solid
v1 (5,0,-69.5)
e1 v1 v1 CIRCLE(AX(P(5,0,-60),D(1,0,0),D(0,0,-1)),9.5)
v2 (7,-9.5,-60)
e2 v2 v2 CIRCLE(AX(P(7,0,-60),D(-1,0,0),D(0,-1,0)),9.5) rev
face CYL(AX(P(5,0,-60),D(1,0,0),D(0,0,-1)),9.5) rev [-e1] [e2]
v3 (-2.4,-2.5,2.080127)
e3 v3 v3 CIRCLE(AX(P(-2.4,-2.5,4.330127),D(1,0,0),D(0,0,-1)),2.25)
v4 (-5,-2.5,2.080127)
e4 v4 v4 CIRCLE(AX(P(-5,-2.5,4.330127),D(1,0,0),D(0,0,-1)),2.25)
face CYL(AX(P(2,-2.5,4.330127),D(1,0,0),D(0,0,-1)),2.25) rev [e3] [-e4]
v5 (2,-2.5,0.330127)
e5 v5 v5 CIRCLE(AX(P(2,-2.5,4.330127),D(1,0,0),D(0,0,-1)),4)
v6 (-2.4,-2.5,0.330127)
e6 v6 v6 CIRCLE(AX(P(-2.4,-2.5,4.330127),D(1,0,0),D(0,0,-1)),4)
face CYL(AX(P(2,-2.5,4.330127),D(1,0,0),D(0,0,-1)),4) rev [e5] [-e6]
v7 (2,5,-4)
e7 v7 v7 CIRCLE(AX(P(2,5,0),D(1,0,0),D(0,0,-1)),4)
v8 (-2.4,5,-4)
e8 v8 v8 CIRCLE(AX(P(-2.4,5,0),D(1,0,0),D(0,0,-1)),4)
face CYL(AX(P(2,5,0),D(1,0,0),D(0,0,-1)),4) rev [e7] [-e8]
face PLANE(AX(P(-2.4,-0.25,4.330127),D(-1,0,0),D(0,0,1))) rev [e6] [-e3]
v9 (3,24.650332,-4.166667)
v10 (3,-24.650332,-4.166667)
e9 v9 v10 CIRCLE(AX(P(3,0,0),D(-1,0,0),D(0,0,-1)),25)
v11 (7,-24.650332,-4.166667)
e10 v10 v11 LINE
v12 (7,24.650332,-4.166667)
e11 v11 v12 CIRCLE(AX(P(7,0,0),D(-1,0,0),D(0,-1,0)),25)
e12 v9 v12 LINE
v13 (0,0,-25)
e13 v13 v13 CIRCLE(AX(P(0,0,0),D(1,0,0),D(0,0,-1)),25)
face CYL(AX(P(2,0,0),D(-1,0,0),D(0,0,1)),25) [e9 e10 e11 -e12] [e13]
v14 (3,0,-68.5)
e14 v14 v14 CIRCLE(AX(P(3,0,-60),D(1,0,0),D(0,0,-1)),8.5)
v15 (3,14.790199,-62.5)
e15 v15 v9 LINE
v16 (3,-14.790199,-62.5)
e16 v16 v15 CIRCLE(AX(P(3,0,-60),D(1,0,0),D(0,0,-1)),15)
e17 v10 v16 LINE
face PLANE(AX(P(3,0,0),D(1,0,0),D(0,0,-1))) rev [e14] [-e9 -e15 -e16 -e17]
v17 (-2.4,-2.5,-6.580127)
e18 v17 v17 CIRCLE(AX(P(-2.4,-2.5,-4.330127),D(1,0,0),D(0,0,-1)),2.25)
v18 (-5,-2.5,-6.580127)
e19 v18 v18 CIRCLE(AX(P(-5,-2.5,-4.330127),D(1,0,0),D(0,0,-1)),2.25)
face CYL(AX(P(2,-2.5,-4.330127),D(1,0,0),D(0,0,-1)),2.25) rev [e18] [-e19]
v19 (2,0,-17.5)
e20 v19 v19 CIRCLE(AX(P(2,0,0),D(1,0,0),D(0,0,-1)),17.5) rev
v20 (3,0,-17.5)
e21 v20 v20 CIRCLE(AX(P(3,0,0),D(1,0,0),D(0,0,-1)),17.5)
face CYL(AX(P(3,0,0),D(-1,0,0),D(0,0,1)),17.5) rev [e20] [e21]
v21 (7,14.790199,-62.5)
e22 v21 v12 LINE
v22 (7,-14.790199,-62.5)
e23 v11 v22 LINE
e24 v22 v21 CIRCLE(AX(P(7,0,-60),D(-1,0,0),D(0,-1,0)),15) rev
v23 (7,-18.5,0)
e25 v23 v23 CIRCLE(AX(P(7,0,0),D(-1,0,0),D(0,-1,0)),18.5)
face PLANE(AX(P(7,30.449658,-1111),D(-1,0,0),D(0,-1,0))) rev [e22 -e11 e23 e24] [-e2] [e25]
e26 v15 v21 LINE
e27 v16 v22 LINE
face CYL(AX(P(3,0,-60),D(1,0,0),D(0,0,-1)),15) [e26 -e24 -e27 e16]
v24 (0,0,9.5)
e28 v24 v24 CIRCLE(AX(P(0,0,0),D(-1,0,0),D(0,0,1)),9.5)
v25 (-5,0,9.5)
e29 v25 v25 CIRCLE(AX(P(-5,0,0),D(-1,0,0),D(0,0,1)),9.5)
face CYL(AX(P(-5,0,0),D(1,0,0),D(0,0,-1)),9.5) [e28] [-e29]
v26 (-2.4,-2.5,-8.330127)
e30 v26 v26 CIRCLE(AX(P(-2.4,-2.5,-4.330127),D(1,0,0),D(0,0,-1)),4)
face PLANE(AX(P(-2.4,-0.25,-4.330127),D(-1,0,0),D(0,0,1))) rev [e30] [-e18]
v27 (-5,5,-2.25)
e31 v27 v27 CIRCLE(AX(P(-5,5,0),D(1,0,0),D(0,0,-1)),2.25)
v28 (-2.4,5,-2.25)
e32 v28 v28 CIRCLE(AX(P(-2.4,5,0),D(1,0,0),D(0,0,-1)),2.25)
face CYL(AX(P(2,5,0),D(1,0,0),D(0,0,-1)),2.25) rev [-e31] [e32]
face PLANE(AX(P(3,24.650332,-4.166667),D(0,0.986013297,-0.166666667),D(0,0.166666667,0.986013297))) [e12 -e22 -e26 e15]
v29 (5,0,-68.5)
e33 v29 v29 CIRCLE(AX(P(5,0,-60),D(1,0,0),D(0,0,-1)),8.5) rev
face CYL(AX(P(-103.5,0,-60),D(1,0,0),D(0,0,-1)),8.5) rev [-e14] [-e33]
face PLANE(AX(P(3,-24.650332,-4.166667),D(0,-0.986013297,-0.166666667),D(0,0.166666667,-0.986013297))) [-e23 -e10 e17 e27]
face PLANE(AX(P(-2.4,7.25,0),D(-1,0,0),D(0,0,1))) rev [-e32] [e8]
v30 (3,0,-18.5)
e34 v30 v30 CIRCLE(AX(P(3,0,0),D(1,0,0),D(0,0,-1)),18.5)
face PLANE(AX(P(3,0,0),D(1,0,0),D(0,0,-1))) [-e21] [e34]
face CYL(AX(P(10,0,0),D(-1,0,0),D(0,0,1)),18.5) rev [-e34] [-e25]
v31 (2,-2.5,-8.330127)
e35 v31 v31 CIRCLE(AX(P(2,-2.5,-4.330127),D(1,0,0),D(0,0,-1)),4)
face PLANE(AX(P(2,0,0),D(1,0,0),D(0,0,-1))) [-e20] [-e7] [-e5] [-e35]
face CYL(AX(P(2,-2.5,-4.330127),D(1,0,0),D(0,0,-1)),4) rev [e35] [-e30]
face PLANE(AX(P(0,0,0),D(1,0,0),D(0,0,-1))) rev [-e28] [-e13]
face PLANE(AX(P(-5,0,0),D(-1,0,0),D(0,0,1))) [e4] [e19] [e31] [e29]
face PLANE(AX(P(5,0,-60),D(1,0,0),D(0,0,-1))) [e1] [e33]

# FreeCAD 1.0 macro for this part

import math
import FreeCAD as App
import Part
import Sketcher
from FreeCAD import Vector
Q = App.Units.Quantity


def add_polygon(sketch, points):
    """Adds a closed chain of lines whose ends are joined by coincident constraints."""
    first, n = sketch.GeometryCount, len(points)
    for a, b in zip(points, points[1:] + points[:1]):
        sketch.addGeometry(Part.LineSegment(App.Vector(*a, 0), App.Vector(*b, 0)), False)
    for i in range(n):
        sketch.addConstraint(Sketcher.Constraint("Coincident", first + i, 2, first + (i + 1) % n, 1))

doc = App.newDocument("Part")
body = doc.addObject("PartDesign::Body", "Body")

# Sketch on YZ plane
sketch1 = body.newObject("Sketcher::SketchObject", "Sketch")
sketch1.AttachmentSupport = (doc.getObject("YZ_Plane"), [""])
sketch1.MapMode = "FlatFace"
sketch1.addGeometry(Part.Circle(Vector(0, 0, 0), Vector(0, 0, 1), 25), False)
sketch1.addConstraint(Sketcher.Constraint("Coincident", 0, 3, -1, 1))
sketch1.addConstraint(Sketcher.Constraint("Diameter", 0, Q("50 mm")))
pad1 = body.newObject("PartDesign::Pad", "Pad")
pad1.Profile = sketch1
pad1.Length = 2

# Sketch on YZ plane
sketch2 = body.newObject("Sketcher::SketchObject", "Sketch001")
sketch2.AttachmentSupport = (doc.getObject("YZ_Plane"), [""])
sketch2.MapMode = "FlatFace"
sketch2.AttachmentOffset = App.Placement(Vector(0, 0, 2), App.Rotation())
sketch2.addGeometry(Part.Circle(Vector(0, 0, 0), Vector(0, 0, 1), 25), False)
sketch2.addGeometry(Part.Circle(Vector(0, 0, 0), Vector(0, 0, 1), 18), False)
sketch2.addConstraint(Sketcher.Constraint("Coincident", 0, 3, -1, 1))
sketch2.addConstraint(Sketcher.Constraint("Coincident", 1, 3, -1, 1))
sketch2.addConstraint(Sketcher.Constraint("Diameter", 0, Q("50 mm")))
sketch2.addConstraint(Sketcher.Constraint("Diameter", 1, Q("35 mm")))
pad2 = body.newObject("PartDesign::Pad", "Pad001")
pad2.Profile = sketch2
pad2.Length = 1

# Sketch on YZ plane
sketch3 = body.newObject("Sketcher::SketchObject", "Sketch002")
sketch3.AttachmentSupport = (doc.getObject("YZ_Plane"), [""])
sketch3.MapMode = "FlatFace"
sketch3.AttachmentOffset = App.Placement(Vector(0, 0, 3), App.Rotation())
sketch3.addGeometry(Part.Circle(Vector(0, 0, 0), Vector(0, 0, 1), 25), False)
sketch3.addGeometry(Part.Circle(Vector(0, 0, 0), Vector(0, 0, 1), 18), False)
sketch3.addConstraint(Sketcher.Constraint("Coincident", 0, 3, -1, 1))
sketch3.addConstraint(Sketcher.Constraint("Coincident", 1, 3, -1, 1))
sketch3.addConstraint(Sketcher.Constraint("Diameter", 0, Q("50 mm")))
sketch3.addConstraint(Sketcher.Constraint("Diameter", 1, Q("37 mm")))
pad3 = body.newObject("PartDesign::Pad", "Pad002")
pad3.Profile = sketch3
pad3.Length = 7

# Sketch on YZ plane
sketch4 = body.newObject("Sketcher::SketchObject", "Sketch003")
sketch4.AttachmentSupport = (doc.getObject("YZ_Plane"), [""])
sketch4.MapMode = "FlatFace"
sketch4.AttachmentOffset = App.Placement(Vector(0, 0, 10), App.Rotation())
sketch4.addGeometry(Part.Circle(Vector(0, 0, 0), Vector(0, 0, 1), 25), False)
sketch4.addGeometry(Part.Circle(Vector(0, 0, 0), Vector(0, 0, 1), 18), False)
sketch4.addConstraint(Sketcher.Constraint("Coincident", 0, 3, -1, 1))
sketch4.addConstraint(Sketcher.Constraint("Coincident", 1, 3, -1, 1))
sketch4.addConstraint(Sketcher.Constraint("Diameter", 0, Q("50 mm")))
sketch4.addConstraint(Sketcher.Constraint("Diameter", 1, Q("35 mm")))
pad4 = body.newObject("PartDesign::Pad", "Pad003")
pad4.Profile = sketch4
pad4.Length = 2

# Sketch on YZ plane
sketch5 = body.newObject("Sketcher::SketchObject", "Sketch004")
sketch5.AttachmentSupport = (doc.getObject("YZ_Plane"), [""])
sketch5.MapMode = "FlatFace"
sketch5.AttachmentOffset = App.Placement(Vector(0, 0, 12), App.Rotation())
sketch5.addGeometry(Part.LineSegment(Vector(15, -62, 0), Vector(25, -4, 0)), False)
sketch5.addGeometry(Part.ArcOfCircle(Part.Circle(Vector(0, 0, 0), Vector(0, 0, 1), 25), math.radians(-170), math.radians(-10)), False)
sketch5.addGeometry(Part.LineSegment(Vector(-25, -4, 0), Vector(-15, -62, 0)), False)
sketch5.addGeometry(Part.ArcOfCircle(Part.Circle(Vector(0, -60, 0), Vector(0, 0, 1), 15), math.radians(-170), math.radians(-10)), False)
sketch5.addConstraint(Sketcher.Constraint("Tangent", 0, 2, 1, 2))
sketch5.addConstraint(Sketcher.Constraint("Tangent", 1, 1, 2, 1))
sketch5.addConstraint(Sketcher.Constraint("Tangent", 2, 2, 3, 1))
sketch5.addConstraint(Sketcher.Constraint("Tangent", 3, 2, 0, 1))
sketch5.addConstraint(Sketcher.Constraint("Coincident", 1, 3, -1, 1))
sketch5.addConstraint(Sketcher.Constraint("PointOnObject", 3, 3, -2))
sketch5.addConstraint(Sketcher.Constraint("Radius", 1, Q("25 mm")))
sketch5.addConstraint(Sketcher.Constraint("Radius", 3, Q("15 mm")))
sketch5.addConstraint(Sketcher.Constraint("DistanceY", 3, 3, -1, 1, Q("60 mm")))
pad5 = body.newObject("PartDesign::Pad", "Pad004")
pad5.Profile = sketch5
pad5.Length = 9
pad5.Reversed = True

# Sketch on YZ plane
sketch6 = body.newObject("Sketcher::SketchObject", "Sketch005")
sketch6.AttachmentSupport = (doc.getObject("YZ_Plane"), [""])
sketch6.MapMode = "FlatFace"
sketch6.AttachmentOffset = App.Placement(Vector(0, 0, 7.5), App.Rotation())
sketch6.addGeometry(Part.Circle(Vector(0, -60, 0), Vector(0, 0, 1), 8), False)
sketch6.addConstraint(Sketcher.Constraint("PointOnObject", 0, 3, -2))
sketch6.addConstraint(Sketcher.Constraint("Diameter", 0, Q("17 mm")))
sketch6.addConstraint(Sketcher.Constraint("DistanceY", 0, 3, -1, 1, Q("60 mm")))
pocket1 = body.newObject("PartDesign::Pocket", "Pocket")
pocket1.Profile = sketch6
pocket1.Length = 222
pocket1.Midplane = True

# Sketch on YZ plane
sketch7 = body.newObject("Sketcher::SketchObject", "Sketch006")
sketch7.AttachmentSupport = (doc.getObject("YZ_Plane"), [""])
sketch7.MapMode = "FlatFace"
sketch7.AttachmentOffset = App.Placement(Vector(0, 0, 7.5), App.Rotation())
sketch7.addGeometry(Part.Circle(Vector(0, -60, 0), Vector(0, 0, 1), 10), False)
sketch7.addConstraint(Sketcher.Constraint("PointOnObject", 0, 3, -2))
sketch7.addConstraint(Sketcher.Constraint("Diameter", 0, Q("19 mm")))
sketch7.addConstraint(Sketcher.Constraint("DistanceY", 0, 3, -1, 1, Q("60 mm")))
pocket2 = body.newObject("PartDesign::Pocket", "Pocket001")
pocket2.Profile = sketch7
pocket2.Length = 5
pocket2.Midplane = True

# Sketch on YZ plane
sketch8 = body.newObject("Sketcher::SketchObject", "Sketch007")
sketch8.AttachmentSupport = (doc.getObject("YZ_Plane"), [""])
sketch8.MapMode = "FlatFace"
sketch8.addGeometry(Part.Circle(Vector(0, 0, 0), Vector(0, 0, 1), 10), False)
sketch8.addConstraint(Sketcher.Constraint("Coincident", 0, 3, -1, 1))
sketch8.addConstraint(Sketcher.Constraint("Diameter", 0, Q("19 mm")))
pad6 = body.newObject("PartDesign::Pad", "Pad005")
pad6.Profile = sketch8
pad6.Length = 5
pad6.Reversed = True

# Sketch on YZ plane
sketch9 = body.newObject("Sketcher::SketchObject", "Sketch008")
sketch9.AttachmentSupport = (doc.getObject("YZ_Plane"), [""])
sketch9.MapMode = "FlatFace"
sketch9.AttachmentOffset = App.Placement(Vector(0, 0, 2), App.Rotation())
sketch9.addGeometry(Part.Circle(Vector(5, 0, 0), Vector(0, 0, 1), 2.2), False)
sketch9.addConstraint(Sketcher.Constraint("PointOnObject", 0, 3, -1))
sketch9.addConstraint(Sketcher.Constraint("Diameter", 0, Q("4.5 mm")))
sketch9.addConstraint(Sketcher.Constraint("DistanceX", -1, 1, 0, 3, Q("5 mm")))
doc.recompute()
hole = body.newObject("PartDesign::Hole", "Hole")
hole.Profile = sketch9
hole.ThreadType = "None"
hole.Diameter = 4.5
hole.DepthType = "ThroughAll"
hole.HoleCutType = "Counterbore"
hole.HoleCutDiameter = 8
hole.HoleCutDepth = 4.4
doc.recompute()

polarpattern = body.newObject("PartDesign::PolarPattern", "PolarPattern")
polarpattern.Originals = [hole]
polarpattern.Axis = (doc.getObject("X_Axis"), [""])
polarpattern.Angle = 360
polarpattern.Occurrences = 3
body.Tip = polarpattern

# Sketch on XY plane
sketch10 = body.newObject("Sketcher::SketchObject", "Sketch009")
sketch10.AttachmentSupport = (doc.getObject("XY_Plane"), [""])
sketch10.MapMode = "FlatFace"
add_polygon(sketch10, [(7, 30), (7, -34), (25, -34), (25, 30)])  # lines 0-3
sketch10.addConstraint(Sketcher.Constraint("Vertical", 0))
sketch10.addConstraint(Sketcher.Constraint("Horizontal", 1))
sketch10.addConstraint(Sketcher.Constraint("Vertical", 2))
sketch10.addConstraint(Sketcher.Constraint("Horizontal", 3))
sketch10.addConstraint(Sketcher.Constraint("DistanceX", -1, 1, 0, 2, Q("7 mm")))
sketch10.addConstraint(Sketcher.Constraint("DistanceX", 1, 1, 1, 2, Q("17.71406 mm")))
sketch10.addConstraint(Sketcher.Constraint("DistanceY", 0, 2, 0, 1, Q("64.604217 mm")))
sketch10.addConstraint(Sketcher.Constraint("DistanceY", 0, 2, -1, 1, Q("34.154559 mm")))
pocket3 = body.newObject("PartDesign::Pocket", "Pocket002")
pocket3.Profile = sketch10
pocket3.Length = 2222
pocket3.Midplane = True

doc.recompute()
